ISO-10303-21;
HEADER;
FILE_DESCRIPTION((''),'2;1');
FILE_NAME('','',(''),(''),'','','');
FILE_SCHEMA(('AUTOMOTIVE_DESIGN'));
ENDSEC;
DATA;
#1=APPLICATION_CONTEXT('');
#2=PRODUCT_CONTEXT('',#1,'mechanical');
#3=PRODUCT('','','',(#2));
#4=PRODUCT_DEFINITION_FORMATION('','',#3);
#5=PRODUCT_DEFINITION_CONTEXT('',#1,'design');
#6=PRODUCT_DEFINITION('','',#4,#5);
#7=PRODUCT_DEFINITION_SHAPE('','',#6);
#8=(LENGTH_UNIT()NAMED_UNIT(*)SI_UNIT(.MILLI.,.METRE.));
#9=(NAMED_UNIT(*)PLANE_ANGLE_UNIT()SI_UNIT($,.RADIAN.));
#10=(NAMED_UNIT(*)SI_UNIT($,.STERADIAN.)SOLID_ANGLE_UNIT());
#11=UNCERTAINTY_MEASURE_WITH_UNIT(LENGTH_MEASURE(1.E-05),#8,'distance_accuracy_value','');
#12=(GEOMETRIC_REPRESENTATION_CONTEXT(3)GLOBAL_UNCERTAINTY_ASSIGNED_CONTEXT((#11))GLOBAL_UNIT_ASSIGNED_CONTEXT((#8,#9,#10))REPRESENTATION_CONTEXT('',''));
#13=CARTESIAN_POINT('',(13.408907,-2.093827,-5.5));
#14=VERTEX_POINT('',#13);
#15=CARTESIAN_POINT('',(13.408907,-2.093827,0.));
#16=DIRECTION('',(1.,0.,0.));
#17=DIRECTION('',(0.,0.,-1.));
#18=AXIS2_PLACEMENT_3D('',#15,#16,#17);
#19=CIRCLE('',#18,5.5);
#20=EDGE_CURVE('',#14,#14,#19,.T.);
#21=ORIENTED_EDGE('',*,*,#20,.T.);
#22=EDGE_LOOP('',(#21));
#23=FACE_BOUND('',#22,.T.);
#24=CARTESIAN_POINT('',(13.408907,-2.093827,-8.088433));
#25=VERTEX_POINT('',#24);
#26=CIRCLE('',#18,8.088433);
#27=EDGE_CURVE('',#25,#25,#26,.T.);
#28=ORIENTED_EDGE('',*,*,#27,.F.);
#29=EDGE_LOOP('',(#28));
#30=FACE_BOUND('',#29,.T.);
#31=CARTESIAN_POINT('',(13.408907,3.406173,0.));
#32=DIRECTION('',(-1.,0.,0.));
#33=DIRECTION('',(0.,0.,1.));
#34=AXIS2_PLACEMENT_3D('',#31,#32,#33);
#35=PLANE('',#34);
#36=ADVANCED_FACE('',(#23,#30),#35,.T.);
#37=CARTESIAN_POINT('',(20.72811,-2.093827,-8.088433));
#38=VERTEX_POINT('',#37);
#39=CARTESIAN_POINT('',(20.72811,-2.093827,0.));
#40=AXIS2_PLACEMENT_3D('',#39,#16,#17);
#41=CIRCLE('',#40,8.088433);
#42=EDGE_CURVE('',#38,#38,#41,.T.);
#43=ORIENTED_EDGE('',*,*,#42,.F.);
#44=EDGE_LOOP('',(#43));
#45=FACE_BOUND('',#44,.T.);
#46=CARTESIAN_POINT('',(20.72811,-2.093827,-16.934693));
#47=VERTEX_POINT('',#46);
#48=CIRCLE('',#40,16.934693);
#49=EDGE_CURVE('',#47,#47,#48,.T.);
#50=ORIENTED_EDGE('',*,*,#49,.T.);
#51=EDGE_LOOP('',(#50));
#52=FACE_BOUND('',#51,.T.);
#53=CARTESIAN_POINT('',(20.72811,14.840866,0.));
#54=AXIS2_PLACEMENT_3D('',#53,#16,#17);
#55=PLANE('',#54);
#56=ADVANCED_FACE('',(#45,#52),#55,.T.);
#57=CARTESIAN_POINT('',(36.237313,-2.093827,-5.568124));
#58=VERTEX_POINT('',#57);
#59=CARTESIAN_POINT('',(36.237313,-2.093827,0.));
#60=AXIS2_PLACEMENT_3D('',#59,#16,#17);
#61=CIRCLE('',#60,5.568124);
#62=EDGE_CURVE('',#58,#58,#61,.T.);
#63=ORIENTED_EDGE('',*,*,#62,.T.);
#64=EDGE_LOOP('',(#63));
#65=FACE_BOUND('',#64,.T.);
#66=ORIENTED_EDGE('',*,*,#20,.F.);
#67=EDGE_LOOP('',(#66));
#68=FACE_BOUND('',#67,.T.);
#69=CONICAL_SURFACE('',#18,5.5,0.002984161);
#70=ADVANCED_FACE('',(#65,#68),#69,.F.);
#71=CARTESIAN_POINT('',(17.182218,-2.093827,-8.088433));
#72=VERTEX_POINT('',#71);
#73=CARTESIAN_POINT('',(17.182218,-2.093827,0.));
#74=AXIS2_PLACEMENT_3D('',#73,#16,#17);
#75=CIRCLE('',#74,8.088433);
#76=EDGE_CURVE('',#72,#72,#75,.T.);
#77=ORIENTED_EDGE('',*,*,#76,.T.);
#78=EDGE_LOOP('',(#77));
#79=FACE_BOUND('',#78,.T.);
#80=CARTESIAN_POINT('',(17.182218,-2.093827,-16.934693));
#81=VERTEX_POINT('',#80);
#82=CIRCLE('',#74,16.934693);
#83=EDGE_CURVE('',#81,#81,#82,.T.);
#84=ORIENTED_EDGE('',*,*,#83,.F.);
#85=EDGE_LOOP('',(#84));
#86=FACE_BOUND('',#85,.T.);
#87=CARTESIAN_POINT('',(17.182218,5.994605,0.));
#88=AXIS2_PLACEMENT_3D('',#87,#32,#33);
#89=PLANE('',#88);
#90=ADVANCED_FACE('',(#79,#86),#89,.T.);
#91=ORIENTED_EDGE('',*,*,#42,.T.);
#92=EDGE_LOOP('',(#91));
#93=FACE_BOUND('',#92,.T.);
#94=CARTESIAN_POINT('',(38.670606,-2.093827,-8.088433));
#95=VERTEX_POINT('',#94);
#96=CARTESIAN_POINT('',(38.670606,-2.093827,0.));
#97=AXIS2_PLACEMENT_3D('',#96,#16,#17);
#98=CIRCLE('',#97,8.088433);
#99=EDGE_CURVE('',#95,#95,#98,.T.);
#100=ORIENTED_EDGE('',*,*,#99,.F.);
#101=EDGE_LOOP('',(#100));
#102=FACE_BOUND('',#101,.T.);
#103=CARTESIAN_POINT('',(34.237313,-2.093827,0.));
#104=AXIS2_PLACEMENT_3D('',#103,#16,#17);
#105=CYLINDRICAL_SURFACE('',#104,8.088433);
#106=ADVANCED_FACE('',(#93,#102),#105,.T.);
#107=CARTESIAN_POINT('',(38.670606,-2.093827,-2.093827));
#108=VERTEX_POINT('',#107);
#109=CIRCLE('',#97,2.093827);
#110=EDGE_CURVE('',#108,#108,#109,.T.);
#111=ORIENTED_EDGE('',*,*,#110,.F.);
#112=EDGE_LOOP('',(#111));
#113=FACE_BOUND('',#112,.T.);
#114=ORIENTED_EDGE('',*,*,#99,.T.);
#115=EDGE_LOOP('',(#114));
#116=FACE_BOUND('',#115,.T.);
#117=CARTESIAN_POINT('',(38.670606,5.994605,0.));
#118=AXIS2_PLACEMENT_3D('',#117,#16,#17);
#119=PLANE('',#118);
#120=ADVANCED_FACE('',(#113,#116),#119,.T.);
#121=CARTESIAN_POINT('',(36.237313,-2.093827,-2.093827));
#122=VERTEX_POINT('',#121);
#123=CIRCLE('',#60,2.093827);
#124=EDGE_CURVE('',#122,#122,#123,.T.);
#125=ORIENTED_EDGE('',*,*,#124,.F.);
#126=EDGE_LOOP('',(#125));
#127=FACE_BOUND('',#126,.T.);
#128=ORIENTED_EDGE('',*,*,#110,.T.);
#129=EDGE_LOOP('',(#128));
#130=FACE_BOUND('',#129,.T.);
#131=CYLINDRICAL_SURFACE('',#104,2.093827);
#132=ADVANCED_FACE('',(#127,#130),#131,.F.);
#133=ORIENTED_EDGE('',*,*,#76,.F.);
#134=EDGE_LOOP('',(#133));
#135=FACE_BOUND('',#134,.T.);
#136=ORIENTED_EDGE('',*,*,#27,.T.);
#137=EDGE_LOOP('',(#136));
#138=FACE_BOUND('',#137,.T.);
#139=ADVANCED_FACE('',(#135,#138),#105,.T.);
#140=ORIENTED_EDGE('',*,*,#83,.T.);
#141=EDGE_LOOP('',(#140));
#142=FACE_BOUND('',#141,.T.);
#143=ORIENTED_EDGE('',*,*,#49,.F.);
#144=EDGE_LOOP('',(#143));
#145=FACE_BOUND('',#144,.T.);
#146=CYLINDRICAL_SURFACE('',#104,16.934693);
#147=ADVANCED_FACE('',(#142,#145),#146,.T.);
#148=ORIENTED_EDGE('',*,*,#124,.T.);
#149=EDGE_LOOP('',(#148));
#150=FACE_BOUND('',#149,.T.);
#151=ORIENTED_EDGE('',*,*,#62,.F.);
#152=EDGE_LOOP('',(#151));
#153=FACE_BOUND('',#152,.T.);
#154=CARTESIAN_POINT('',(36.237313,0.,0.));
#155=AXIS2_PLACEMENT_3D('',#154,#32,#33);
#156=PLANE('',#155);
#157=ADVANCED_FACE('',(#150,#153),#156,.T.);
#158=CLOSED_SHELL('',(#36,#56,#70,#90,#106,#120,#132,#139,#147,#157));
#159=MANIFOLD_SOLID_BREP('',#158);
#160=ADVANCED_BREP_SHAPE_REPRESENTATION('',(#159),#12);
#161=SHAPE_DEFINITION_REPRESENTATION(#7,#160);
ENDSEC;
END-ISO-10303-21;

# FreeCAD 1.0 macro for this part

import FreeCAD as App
import Part
import Sketcher

V = App.Vector

doc = App.newDocument("Part")
params = doc.addObject("Spreadsheet::Sheet", "Params")
for row, (alias, value) in enumerate([
    ("revolution_angle", "360 deg"),
], start=1):
    params.set(f"A{row}", alias)
    params.set(f"B{row}", "=" + value)
    params.setAlias(f"B{row}", alias)

body = doc.addObject("PartDesign::Body", "Body")

sketch1 = doc.addObject("Sketcher::SketchObject", "Sketch")
body.addObject(sketch1)
sketch1.AttachmentSupport = (doc.XY_Plane, [""])
sketch1.MapMode = "FlatFace"
sketch1.addGeometry([
    Part.LineSegment(V(36.2, 0, 0), V(38.7, 0, 0)),
    Part.LineSegment(V(38.7, 0, 0), V(38.7, 6, 0)),
    Part.LineSegment(V(38.7, 6, 0), V(20.7, 6, 0)),
    Part.LineSegment(V(20.7, 6, 0), V(20.7, 14.8, 0)),
    Part.LineSegment(V(20.7, 14.8, 0), V(17.2, 14.8, 0)),
    Part.LineSegment(V(17.2, 14.8, 0), V(17.2, 6, 0)),
    Part.LineSegment(V(17.2, 6, 0), V(13.4, 6, 0)),
    Part.LineSegment(V(13.4, 6, 0), V(13.4, 3.4, 0)),
    Part.LineSegment(V(13.4, 3.4, 0), V(36.2, 3.5, 0)),
    Part.LineSegment(V(36.2, 3.5, 0), V(36.2, 0, 0)),
], False)
sketch1.addGeometry(Part.LineSegment(V(38.7, -2.1, 0), V(13.4, -2.1, 0)), True)
sketch1.addConstraint([
    Sketcher.Constraint("Coincident", 0, 2, 1, 1),
    Sketcher.Constraint("Coincident", 1, 2, 2, 1),
    Sketcher.Constraint("Coincident", 2, 2, 3, 1),
    Sketcher.Constraint("Coincident", 3, 2, 4, 1),
    Sketcher.Constraint("Coincident", 4, 2, 5, 1),
    Sketcher.Constraint("Coincident", 5, 2, 6, 1),
    Sketcher.Constraint("Coincident", 6, 2, 7, 1),
    Sketcher.Constraint("Coincident", 7, 2, 8, 1),
    Sketcher.Constraint("Coincident", 8, 2, 9, 1),
    Sketcher.Constraint("Coincident", 9, 2, 0, 1),
    Sketcher.Constraint("Horizontal", 0),
    Sketcher.Constraint("Vertical", 1),
    Sketcher.Constraint("Horizontal", 2),
    Sketcher.Constraint("Vertical", 3),
    Sketcher.Constraint("Horizontal", 4),
    Sketcher.Constraint("Vertical", 5),
    Sketcher.Constraint("Horizontal", 6),
    Sketcher.Constraint("Vertical", 7),
    Sketcher.Constraint("Vertical", 9),
    Sketcher.Constraint("Horizontal", 10),
    Sketcher.Constraint("PointOnObject", 0, 2, -1),
    Sketcher.Constraint("Horizontal", 2, 2, 5, 2),
    Sketcher.Constraint("Vertical", 1, 2, 10, 1),
    Sketcher.Constraint("Vertical", 7, 2, 10, 2),
    Sketcher.Constraint("DistanceY", 10, 2, 7, 2, 5.5),
    Sketcher.Constraint("DistanceX", 10, 2, 10, 1, 25.261699),
    Sketcher.Constraint("DistanceX", 6, 2, 6, 1, 3.773311),
    Sketcher.Constraint("DistanceY", 3, 1, 3, 2, 8.84626),
    Sketcher.Constraint("DistanceX", 0, 1, 0, 2, 2.433293),
    Sketcher.Constraint("DistanceX", 2, 2, 2, 1, 17.942496),
    Sketcher.Constraint("DistanceY", 1, 1, 1, 2, 5.994605),
    Sketcher.Constraint("DistanceY", 7, 2, 7, 1, 2.588433),
    Sketcher.Constraint("DistanceY", 9, 2, 9, 1, 3.474297),
    Sketcher.Constraint("DistanceX", -1, 1, 2, 2, 20.72811),
])
revolution = doc.addObject("PartDesign::Revolution", "Revolution")
body.addObject(revolution)
revolution.Profile = sketch1
revolution.ReferenceAxis = (sketch1, ["Axis0"])
revolution.setExpression("Angle", "Params.revolution_angle")

doc.recompute()
